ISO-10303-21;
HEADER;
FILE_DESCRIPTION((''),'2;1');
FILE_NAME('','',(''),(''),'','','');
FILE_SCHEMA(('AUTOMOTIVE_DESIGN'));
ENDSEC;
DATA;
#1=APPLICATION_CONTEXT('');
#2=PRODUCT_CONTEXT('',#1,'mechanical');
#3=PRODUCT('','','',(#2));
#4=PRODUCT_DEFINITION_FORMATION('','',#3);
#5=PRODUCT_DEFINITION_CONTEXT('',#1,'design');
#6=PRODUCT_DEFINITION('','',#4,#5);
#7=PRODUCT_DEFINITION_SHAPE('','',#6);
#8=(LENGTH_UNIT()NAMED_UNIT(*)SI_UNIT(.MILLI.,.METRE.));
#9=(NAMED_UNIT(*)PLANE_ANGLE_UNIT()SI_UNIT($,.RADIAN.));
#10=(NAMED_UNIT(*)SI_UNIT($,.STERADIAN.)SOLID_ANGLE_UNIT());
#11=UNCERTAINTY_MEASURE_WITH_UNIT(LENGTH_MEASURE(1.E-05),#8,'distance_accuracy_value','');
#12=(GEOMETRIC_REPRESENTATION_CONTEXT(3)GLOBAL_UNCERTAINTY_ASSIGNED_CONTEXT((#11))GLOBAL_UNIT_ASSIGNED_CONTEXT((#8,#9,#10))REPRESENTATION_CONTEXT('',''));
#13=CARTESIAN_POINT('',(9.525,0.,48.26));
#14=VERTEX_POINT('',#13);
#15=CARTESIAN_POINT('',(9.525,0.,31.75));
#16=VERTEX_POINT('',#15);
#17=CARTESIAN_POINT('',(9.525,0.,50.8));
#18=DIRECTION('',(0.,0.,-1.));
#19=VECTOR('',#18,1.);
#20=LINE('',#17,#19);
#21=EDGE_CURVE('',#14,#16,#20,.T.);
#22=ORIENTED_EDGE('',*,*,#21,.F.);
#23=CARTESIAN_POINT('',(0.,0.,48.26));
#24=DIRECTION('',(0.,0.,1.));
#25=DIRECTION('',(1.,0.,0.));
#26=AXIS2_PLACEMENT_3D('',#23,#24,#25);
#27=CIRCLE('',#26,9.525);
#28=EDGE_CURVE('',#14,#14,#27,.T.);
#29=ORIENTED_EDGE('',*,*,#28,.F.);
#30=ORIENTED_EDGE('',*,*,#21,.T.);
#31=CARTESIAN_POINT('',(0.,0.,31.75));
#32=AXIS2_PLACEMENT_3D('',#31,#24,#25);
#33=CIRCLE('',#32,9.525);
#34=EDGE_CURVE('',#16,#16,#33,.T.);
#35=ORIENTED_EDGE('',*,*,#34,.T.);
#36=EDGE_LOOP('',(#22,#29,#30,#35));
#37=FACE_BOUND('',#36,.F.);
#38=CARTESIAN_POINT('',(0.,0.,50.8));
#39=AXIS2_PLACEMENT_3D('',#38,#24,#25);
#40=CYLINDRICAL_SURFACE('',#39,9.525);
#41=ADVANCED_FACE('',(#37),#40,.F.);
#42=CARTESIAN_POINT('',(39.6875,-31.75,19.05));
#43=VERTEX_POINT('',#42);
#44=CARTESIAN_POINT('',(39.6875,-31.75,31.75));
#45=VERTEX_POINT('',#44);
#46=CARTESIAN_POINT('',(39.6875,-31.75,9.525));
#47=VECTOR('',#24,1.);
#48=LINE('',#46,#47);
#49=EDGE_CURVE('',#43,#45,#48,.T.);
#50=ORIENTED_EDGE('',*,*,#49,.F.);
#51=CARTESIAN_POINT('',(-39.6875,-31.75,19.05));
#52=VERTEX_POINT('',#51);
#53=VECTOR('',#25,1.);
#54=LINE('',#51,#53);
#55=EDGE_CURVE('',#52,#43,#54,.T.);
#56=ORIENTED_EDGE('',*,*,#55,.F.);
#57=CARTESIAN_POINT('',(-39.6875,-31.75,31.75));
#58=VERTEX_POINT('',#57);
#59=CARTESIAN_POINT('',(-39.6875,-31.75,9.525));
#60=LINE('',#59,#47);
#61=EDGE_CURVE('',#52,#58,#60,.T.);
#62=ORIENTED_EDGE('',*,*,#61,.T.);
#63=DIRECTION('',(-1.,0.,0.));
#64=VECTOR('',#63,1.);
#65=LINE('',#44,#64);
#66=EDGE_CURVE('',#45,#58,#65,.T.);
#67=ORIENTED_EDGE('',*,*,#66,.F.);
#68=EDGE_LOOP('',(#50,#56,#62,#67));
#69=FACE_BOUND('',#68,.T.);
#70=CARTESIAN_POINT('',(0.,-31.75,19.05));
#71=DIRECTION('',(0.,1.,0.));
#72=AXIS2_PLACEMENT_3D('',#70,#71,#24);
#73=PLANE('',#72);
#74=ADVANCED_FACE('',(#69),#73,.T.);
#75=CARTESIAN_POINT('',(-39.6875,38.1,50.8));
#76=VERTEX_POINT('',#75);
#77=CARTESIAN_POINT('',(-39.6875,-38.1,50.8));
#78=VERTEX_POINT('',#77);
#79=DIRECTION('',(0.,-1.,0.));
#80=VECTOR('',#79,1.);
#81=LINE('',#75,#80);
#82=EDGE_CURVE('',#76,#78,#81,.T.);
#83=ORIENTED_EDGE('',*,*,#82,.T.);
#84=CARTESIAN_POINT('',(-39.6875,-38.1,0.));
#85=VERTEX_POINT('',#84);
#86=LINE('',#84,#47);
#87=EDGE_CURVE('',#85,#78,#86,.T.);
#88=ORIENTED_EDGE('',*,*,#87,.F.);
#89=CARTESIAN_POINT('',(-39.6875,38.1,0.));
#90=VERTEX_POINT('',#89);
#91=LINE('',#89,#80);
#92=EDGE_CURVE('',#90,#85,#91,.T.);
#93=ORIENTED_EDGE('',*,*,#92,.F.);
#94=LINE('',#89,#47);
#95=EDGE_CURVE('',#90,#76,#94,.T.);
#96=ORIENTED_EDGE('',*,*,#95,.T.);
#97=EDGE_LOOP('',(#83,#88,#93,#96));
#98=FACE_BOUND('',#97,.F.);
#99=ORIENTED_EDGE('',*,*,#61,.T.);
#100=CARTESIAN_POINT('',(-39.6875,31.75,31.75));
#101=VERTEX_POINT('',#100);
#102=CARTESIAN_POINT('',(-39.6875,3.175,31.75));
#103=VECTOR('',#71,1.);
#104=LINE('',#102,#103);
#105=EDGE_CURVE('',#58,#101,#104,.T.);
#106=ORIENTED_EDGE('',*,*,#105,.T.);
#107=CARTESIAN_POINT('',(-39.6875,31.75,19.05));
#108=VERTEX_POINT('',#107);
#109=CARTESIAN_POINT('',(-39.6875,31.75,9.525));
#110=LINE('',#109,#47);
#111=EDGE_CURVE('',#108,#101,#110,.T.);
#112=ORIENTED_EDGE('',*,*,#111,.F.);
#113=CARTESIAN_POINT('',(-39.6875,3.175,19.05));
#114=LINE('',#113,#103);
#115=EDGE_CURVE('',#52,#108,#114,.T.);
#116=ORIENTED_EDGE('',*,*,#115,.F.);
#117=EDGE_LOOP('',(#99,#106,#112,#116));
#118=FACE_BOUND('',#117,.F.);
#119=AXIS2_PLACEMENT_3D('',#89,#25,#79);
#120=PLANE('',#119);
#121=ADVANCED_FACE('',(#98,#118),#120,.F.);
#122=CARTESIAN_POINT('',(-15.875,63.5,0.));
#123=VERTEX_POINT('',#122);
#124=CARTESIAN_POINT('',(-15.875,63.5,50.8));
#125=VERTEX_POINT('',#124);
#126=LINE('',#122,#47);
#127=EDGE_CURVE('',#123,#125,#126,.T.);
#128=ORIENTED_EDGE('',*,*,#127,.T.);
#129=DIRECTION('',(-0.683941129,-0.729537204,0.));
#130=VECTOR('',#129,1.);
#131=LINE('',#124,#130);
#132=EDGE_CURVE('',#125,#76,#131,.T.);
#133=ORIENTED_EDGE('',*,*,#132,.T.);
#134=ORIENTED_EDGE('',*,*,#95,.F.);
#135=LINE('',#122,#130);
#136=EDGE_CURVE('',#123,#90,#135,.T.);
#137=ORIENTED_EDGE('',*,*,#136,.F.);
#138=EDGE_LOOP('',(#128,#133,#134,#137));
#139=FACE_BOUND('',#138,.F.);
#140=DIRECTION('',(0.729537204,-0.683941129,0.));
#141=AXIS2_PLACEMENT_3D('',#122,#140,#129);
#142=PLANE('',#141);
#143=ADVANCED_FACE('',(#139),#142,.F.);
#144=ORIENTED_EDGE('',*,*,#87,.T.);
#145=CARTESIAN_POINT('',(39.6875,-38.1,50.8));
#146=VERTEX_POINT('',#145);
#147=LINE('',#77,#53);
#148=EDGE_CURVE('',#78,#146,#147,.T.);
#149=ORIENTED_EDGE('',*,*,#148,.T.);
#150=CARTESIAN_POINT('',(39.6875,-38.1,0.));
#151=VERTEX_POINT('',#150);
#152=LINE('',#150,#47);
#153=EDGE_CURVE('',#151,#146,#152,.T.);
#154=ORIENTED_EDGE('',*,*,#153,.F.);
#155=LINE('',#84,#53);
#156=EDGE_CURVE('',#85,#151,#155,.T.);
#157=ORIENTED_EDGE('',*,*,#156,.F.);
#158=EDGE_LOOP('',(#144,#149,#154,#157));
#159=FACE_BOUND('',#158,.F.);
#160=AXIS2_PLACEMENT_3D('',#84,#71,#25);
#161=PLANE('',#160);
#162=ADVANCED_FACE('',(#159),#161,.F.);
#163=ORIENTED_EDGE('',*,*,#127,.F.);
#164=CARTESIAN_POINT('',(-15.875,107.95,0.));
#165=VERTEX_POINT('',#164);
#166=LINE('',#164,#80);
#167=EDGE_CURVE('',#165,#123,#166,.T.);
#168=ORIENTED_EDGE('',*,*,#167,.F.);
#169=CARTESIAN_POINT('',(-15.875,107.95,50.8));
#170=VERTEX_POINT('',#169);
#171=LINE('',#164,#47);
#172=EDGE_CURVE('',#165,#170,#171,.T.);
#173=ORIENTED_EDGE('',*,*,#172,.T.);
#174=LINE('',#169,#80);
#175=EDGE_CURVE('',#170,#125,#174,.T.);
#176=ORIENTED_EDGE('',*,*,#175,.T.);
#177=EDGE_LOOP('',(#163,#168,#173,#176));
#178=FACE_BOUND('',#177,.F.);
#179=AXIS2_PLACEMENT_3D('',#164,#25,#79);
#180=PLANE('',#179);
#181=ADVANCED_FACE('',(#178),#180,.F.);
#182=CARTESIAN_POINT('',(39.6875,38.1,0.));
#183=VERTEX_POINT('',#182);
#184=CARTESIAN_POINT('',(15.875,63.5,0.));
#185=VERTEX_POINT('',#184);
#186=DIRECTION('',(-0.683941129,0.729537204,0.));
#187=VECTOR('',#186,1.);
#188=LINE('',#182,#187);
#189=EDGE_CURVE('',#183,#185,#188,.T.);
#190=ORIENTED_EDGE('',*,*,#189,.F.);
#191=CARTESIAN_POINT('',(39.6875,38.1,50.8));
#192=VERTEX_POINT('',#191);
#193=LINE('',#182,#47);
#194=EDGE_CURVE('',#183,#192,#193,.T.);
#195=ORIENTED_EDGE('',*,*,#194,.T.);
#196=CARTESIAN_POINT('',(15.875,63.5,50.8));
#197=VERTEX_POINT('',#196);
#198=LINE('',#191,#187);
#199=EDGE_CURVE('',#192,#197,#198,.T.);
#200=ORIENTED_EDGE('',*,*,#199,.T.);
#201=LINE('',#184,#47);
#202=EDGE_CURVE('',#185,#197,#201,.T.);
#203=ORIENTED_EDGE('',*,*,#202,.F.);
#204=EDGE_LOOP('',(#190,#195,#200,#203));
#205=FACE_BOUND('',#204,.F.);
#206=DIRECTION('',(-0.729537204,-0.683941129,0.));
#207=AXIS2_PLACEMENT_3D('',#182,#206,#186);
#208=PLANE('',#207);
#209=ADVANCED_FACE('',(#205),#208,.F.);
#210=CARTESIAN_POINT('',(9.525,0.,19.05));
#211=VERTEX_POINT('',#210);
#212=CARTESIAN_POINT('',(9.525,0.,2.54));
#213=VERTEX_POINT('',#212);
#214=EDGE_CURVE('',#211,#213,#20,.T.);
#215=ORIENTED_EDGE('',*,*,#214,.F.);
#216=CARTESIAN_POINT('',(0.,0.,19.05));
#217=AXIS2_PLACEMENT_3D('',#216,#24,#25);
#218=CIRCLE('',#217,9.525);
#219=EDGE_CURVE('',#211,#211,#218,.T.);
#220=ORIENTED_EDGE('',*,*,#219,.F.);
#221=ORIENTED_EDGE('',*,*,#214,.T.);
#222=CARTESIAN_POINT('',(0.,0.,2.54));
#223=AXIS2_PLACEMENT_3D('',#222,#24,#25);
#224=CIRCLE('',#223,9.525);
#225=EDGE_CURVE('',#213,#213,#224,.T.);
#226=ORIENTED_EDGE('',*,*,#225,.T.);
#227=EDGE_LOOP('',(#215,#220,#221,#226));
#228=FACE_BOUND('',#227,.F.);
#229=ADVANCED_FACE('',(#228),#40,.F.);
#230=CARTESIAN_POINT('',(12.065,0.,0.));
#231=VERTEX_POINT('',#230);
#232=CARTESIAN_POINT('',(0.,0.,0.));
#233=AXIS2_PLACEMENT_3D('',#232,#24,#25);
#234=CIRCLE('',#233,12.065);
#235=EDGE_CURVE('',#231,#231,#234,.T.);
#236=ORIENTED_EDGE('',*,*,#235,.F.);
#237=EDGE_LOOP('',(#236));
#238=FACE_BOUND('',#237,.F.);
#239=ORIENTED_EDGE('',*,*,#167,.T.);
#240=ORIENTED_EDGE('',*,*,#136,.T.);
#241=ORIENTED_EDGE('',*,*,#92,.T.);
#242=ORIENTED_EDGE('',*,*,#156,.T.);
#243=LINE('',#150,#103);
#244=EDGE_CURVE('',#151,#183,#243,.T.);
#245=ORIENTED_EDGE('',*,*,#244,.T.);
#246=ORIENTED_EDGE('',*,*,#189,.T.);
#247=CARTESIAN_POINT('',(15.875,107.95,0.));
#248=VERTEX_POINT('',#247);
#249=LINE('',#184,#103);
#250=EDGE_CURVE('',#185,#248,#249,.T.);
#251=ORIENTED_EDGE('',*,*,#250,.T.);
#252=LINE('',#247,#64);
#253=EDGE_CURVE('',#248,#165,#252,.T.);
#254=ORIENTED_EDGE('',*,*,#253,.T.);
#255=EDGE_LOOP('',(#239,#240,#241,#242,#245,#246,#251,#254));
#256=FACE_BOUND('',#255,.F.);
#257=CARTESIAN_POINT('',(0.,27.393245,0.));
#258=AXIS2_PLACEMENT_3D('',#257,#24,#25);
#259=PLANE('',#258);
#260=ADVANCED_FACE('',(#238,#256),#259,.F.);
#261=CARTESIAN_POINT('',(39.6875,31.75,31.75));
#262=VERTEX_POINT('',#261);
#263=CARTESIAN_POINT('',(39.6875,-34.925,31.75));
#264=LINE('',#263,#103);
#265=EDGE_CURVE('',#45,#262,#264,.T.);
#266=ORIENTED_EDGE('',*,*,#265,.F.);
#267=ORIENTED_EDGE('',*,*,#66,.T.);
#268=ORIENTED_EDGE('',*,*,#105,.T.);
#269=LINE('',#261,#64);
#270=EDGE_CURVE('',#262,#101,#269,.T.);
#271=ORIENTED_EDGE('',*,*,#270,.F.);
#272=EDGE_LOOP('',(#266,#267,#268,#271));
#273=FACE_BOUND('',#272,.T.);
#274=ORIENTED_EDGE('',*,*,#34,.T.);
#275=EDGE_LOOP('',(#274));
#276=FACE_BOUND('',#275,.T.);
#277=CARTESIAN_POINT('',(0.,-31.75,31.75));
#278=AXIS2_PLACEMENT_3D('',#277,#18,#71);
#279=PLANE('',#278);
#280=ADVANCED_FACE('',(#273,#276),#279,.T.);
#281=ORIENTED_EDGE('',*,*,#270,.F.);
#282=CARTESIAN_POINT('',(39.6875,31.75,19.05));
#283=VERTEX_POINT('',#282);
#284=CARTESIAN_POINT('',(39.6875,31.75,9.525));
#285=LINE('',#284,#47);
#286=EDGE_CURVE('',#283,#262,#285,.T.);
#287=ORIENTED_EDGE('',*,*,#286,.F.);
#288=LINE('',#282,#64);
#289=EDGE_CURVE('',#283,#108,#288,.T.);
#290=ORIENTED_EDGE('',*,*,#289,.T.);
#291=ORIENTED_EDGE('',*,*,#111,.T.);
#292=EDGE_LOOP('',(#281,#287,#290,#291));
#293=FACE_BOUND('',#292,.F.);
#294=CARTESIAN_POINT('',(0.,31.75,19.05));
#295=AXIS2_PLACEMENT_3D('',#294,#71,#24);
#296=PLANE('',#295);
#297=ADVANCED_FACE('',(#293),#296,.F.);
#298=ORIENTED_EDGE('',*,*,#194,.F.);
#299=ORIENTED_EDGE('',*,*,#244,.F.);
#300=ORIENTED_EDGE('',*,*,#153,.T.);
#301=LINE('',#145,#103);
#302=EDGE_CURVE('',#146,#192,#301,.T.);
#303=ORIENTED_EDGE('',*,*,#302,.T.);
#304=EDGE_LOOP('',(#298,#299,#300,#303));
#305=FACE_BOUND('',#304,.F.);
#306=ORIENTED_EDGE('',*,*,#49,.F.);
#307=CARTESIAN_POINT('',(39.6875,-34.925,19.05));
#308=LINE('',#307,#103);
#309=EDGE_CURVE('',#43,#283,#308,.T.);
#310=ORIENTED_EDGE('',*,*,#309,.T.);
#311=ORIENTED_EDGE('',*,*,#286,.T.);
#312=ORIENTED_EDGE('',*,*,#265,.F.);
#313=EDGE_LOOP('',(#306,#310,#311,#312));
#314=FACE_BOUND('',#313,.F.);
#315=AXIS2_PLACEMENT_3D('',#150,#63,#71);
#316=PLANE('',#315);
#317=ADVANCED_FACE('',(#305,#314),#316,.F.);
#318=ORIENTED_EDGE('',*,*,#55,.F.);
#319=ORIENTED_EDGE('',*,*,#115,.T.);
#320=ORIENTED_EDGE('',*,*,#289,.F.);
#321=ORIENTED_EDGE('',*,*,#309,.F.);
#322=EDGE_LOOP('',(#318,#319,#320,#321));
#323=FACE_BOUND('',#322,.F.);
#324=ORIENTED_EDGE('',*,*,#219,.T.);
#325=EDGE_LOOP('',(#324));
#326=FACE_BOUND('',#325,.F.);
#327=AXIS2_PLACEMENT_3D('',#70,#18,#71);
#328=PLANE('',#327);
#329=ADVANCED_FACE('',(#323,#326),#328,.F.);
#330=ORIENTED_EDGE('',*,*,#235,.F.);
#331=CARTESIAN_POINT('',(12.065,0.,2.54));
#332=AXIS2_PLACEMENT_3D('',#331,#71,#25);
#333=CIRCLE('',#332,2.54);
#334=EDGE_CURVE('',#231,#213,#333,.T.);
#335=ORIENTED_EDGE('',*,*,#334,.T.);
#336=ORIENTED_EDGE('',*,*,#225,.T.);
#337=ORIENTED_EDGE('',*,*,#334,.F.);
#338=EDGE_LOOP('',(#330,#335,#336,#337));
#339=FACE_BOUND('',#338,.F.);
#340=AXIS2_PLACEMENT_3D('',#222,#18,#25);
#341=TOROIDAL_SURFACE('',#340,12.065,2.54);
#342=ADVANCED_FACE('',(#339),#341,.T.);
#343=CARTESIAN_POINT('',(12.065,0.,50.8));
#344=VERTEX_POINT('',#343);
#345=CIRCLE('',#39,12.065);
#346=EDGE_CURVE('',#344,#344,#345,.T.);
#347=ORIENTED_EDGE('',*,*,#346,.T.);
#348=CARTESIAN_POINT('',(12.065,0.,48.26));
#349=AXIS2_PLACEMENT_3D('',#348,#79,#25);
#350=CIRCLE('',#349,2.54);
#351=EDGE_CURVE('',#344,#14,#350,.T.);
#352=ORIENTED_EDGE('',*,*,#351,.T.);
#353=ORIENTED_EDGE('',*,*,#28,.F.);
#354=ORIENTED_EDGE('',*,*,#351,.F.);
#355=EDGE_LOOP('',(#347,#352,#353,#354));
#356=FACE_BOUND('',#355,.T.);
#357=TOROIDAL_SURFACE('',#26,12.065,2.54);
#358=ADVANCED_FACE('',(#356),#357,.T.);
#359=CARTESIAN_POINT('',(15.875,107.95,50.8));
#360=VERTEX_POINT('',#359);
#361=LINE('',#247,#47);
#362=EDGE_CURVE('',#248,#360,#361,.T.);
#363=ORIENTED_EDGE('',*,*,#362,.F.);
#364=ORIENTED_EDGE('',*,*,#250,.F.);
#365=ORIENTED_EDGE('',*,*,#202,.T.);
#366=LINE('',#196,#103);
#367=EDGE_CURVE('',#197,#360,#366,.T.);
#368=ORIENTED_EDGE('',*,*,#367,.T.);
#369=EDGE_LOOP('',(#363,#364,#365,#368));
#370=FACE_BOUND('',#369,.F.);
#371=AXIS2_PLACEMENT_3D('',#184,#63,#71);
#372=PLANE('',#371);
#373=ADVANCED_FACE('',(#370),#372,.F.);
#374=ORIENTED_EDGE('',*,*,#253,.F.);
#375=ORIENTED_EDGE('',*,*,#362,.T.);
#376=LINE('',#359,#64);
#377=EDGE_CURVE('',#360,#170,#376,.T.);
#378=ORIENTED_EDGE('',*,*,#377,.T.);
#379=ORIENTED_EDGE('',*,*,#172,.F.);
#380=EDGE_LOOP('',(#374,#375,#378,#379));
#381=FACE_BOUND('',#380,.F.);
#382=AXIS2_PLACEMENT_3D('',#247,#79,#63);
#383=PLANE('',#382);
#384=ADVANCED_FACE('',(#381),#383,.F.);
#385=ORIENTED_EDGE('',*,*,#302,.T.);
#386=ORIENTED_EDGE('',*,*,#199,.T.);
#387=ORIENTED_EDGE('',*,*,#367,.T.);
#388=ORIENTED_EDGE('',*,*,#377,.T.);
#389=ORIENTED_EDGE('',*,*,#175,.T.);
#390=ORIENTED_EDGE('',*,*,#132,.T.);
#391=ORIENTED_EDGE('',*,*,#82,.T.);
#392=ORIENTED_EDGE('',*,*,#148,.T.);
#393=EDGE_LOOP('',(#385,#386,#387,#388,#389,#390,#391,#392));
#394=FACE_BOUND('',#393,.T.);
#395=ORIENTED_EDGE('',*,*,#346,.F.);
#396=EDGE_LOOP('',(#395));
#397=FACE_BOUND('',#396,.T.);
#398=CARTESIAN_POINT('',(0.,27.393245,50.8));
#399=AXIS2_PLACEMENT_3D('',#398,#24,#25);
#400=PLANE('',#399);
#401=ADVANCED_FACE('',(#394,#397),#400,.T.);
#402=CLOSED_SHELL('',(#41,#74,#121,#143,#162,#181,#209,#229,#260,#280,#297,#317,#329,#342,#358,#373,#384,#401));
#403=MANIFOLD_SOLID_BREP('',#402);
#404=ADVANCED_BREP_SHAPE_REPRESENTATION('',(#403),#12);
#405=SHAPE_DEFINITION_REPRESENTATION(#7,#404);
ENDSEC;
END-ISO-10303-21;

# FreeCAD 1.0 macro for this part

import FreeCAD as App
import Part
import Sketcher
from FreeCAD import Vector
Q = App.Units.Quantity


def edges_at(feature, points):
    """Names of the edges that pass closest to the given points."""
    edges = feature.Shape.Edges
    near = lambda p: min(range(len(edges)), key=lambda i: edges[i].distToShape(Part.Vertex(*p))[0])
    return sorted({f"Edge{near(p) + 1}" for p in points})


def add_polygon(sketch, points):
    """Adds a closed chain of lines whose ends are joined by coincident constraints."""
    first, n = sketch.GeometryCount, len(points)
    for a, b in zip(points, points[1:] + points[:1]):
        sketch.addGeometry(Part.LineSegment(App.Vector(*a, 0), App.Vector(*b, 0)), False)
    for i in range(n):
        sketch.addConstraint(Sketcher.Constraint("Coincident", first + i, 2, first + (i + 1) % n, 1))

doc = App.newDocument("Part")
params = doc.addObject("Spreadsheet::Sheet", "Params")
for row, (alias, value) in enumerate([
    ("sketch1_height", "3 in"),
    ("sketch1_width", "1.25 in"),
    ("sketch1_height2", "1.75 in"),
    ("sketch1_width2", "3.125 in"),
    ("pad1_length", "2 in"),
    ("sketch2_diameter", "0.75 in"),
    ("fillet_radius", "0.1 in"),
    ("sketch3_width", "2.5 in"),
    ("sketch3_height", "0.5 in"),
], start=1):
    params.set(f"A{row}", alias)
    params.set(f"B{row}", "=" + value)
    params.setAlias(f"B{row}", alias)

body = doc.addObject("PartDesign::Body", "Body")

sketch1 = body.newObject("Sketcher::SketchObject", "Sketch")
sketch1.AttachmentSupport = (doc.getObject("XY_Plane"), [""])
sketch1.MapMode = "FlatFace"
add_polygon(sketch1, [(-40, 38), (-40, -38), (40, -38), (40, 38), (16, 64), (16, 108), (-16, 108), (-16, 64)])
sketch1.addConstraint([
    Sketcher.Constraint("Vertical", 0),
    Sketcher.Constraint("Horizontal", 1),
    Sketcher.Constraint("Vertical", 2),
    Sketcher.Constraint("Vertical", 4),
    Sketcher.Constraint("Horizontal", 5),
    Sketcher.Constraint("Vertical", 6),
    Sketcher.Constraint("Symmetric", 0, 2, 2, 2, -1, 1),
    Sketcher.Constraint("Symmetric", 3, 2, 6, 2, -2),
    Sketcher.Constraint("Horizontal", 2, 2, 7, 2),
    Sketcher.Constraint("DistanceY", 0, 2, 0, 1, Q("3 in")),
    Sketcher.Constraint("DistanceY", 2, 2, 3, 2, Q("1 in")),
    Sketcher.Constraint("DistanceX", 5, 2, 5, 1, Q("1.25 in")),
    Sketcher.Constraint("DistanceY", 4, 1, 4, 2, Q("1.75 in")),
    Sketcher.Constraint("DistanceX", 1, 1, 1, 2, Q("3.125 in")),
])
sketch1.setExpression("Constraints[17]", "Params.sketch1_height")
sketch1.setExpression("Constraints[19]", "Params.sketch1_width")
sketch1.setExpression("Constraints[20]", "Params.sketch1_height2")
sketch1.setExpression("Constraints[21]", "Params.sketch1_width2")
pad1 = body.newObject("PartDesign::Pad", "Pad")
pad1.Profile = sketch1
pad1.setExpression("Length", "Params.pad1_length")

sketch2 = body.newObject("Sketcher::SketchObject", "Sketch001")
sketch2.AttachmentSupport = (doc.getObject("XY_Plane"), [""])
sketch2.MapMode = "FlatFace"
sketch2.AttachmentOffset = App.Placement(Vector(0, 0, 2 * 25.4), App.Rotation())
sketch2.addGeometry(Part.Circle(Vector(0, 0, 0), Vector(0, 0, 1), 10), False)
sketch2.addConstraint([
    Sketcher.Constraint("Coincident", 0, 3, -1, 1),
    Sketcher.Constraint("Diameter", 0, Q("0.75 in")),
])
sketch2.setExpression("Constraints[1]", "Params.sketch2_diameter")
pocket1 = body.newObject("PartDesign::Pocket", "Pocket")
pocket1.Profile = sketch2
pocket1.Type = "ThroughAll"
doc.recompute()

fillet = body.newObject("PartDesign::Fillet", "Fillet")
fillet.Base = (pocket1, edges_at(pocket1, [(-9.525, 0, 0), (-9.525, 0, 50.8), (9.525, 0, 25.4)]))
fillet.setExpression("Radius", "Params.fillet_radius")

sketch3 = body.newObject("Sketcher::SketchObject", "Sketch002")
sketch3.AttachmentSupport = (doc.getObject("YZ_Plane"), [""])
sketch3.MapMode = "FlatFace"
add_polygon(sketch3, [(-32, 32), (-32, 19), (32, 19), (32, 32)])
sketch3.addConstraint([
    Sketcher.Constraint("Vertical", 0),
    Sketcher.Constraint("Horizontal", 1),
    Sketcher.Constraint("Vertical", 2),
    Sketcher.Constraint("Horizontal", 3),
    Sketcher.Constraint("DistanceX", 1, 1, 1, 2, Q("2.5 in")),
    Sketcher.Constraint("DistanceY", 0, 2, 0, 1, Q("0.5 in")),
    Sketcher.Constraint("DistanceX", 0, 2, -1, 1, Q("1.25 in")),
    Sketcher.Constraint("DistanceY", -1, 1, 0, 2, Q("0.75 in")),
])
sketch3.setExpression("Constraints[8]", "Params.sketch3_width")
sketch3.setExpression("Constraints[9]", "Params.sketch3_height")
pocket2 = body.newObject("PartDesign::Pocket", "Pocket001")
pocket2.Profile = sketch3
pocket2.Type = "ThroughAll"
pocket2.Midplane = True

doc.recompute()
